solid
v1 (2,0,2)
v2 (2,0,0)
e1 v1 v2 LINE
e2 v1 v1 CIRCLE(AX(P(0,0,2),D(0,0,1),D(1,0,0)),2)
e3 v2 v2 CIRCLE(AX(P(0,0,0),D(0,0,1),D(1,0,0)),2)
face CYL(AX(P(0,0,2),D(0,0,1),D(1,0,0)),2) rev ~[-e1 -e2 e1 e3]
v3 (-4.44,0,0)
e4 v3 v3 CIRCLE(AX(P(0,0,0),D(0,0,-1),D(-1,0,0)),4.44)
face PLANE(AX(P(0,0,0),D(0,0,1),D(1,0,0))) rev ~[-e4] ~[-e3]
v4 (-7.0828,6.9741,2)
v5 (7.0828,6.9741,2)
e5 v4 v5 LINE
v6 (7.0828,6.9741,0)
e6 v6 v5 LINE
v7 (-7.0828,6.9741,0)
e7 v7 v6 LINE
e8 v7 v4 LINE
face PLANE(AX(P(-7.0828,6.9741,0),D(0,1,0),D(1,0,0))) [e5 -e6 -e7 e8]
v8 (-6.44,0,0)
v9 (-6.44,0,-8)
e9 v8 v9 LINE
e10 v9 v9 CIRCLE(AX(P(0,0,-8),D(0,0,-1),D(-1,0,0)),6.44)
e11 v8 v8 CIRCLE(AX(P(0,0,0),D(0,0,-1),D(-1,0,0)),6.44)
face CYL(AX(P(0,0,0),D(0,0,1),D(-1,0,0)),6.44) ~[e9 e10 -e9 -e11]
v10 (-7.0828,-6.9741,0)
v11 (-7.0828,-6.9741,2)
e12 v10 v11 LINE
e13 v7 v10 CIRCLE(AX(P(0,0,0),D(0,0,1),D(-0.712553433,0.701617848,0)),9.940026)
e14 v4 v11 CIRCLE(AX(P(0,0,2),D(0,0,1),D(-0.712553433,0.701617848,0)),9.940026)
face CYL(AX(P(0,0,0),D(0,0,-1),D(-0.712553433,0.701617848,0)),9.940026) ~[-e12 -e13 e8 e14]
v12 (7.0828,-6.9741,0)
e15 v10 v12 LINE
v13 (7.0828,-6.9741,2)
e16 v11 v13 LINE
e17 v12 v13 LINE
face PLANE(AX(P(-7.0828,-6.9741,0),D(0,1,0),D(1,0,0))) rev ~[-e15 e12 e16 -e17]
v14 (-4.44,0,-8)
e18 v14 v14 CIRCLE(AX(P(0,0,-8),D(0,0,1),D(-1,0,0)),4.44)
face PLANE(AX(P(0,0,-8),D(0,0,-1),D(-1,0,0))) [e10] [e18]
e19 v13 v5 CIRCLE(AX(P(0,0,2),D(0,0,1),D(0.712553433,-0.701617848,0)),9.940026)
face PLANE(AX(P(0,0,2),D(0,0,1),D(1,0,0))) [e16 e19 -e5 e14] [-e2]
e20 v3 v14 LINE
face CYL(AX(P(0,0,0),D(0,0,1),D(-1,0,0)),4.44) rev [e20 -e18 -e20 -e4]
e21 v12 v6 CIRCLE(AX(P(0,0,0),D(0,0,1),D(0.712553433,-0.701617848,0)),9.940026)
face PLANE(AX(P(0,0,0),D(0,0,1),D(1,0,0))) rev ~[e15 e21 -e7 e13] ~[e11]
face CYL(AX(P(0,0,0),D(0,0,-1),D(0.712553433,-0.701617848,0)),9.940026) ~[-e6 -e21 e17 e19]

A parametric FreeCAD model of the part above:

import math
import FreeCAD as App
import Part
import Sketcher

doc = App.newDocument("Part")
body = doc.addObject("PartDesign::Body", "Body")

sketch1 = doc.addObject("Sketcher::SketchObject", "Sketch")
body.addObject(sketch1)
sketch1.AttachmentSupport = (doc.XY_Plane, [""])
sketch1.MapMode = "FlatFace"
sketch1.addGeometry([
    Part.LineSegment(App.Vector(7.0828, 6.9741, 0), App.Vector(-7.0828, 6.9741, 0)),
    Part.ArcOfCircle(Part.Circle(App.Vector(0, 0, 0), App.Vector(0, 0, 1), 9.940026), math.radians(135.443051), math.radians(224.556949)),
    Part.LineSegment(App.Vector(-7.0828, -6.9741, 0), App.Vector(7.0828, -6.9741, 0)),
    Part.ArcOfCircle(Part.Circle(App.Vector(0, 0, 0), App.Vector(0, 0, 1), 9.940026), math.radians(-44.556949), math.radians(44.556949)),
], False)
sketch1.addConstraint([
    Sketcher.Constraint("Coincident", 0, 2, 1, 1),
    Sketcher.Constraint("Coincident", 1, 2, 2, 1),
    Sketcher.Constraint("Coincident", 2, 2, 3, 1),
    Sketcher.Constraint("Coincident", 3, 2, 0, 1),
    Sketcher.Constraint("Horizontal", 0),
    Sketcher.Constraint("Horizontal", 2),
    Sketcher.Constraint("Coincident", 1, 3, -1, 1),
    Sketcher.Constraint("Coincident", 3, 3, -1, 1),
    Sketcher.Constraint("Equal", 1, 3),
    Sketcher.Constraint("Vertical", 0, 2, 1, 2),
    Sketcher.Constraint("Radius", 1, 9.94),
    Sketcher.Constraint("DistanceX", 0, 2, 0, 1, 14.1656),
])
pad1 = doc.addObject("PartDesign::Pad", "Pad")
body.addObject(pad1)
pad1.Profile = sketch1
pad1.Length = 2

sketch2 = doc.addObject("Sketcher::SketchObject", "Sketch001")
body.addObject(sketch2)
sketch2.AttachmentSupport = (doc.XY_Plane, [""])
sketch2.MapMode = "FlatFace"
sketch2.addGeometry([
    Part.Circle(App.Vector(0, 0, 0), App.Vector(0, 0, 1), 6.44),
    Part.Circle(App.Vector(0, 0, 0), App.Vector(0, 0, 1), 4.44),
], False)
sketch2.addConstraint([
    Sketcher.Constraint("Coincident", 0, 3, -1, 1),
    Sketcher.Constraint("Coincident", 1, 3, -1, 1),
    Sketcher.Constraint("Diameter", 0, 12.88),
    Sketcher.Constraint("Diameter", 1, 8.88),
])
pad2 = doc.addObject("PartDesign::Pad", "Pad001")
body.addObject(pad2)
pad2.Profile = sketch2
pad2.Length = 8
pad2.Reversed = True

sketch3 = doc.addObject("Sketcher::SketchObject", "Sketch002")
body.addObject(sketch3)
sketch3.AttachmentSupport = (doc.XY_Plane, [""])
sketch3.MapMode = "FlatFace"
sketch3.AttachmentOffset = App.Placement(App.Vector(0, 0, 2), App.Rotation())
sketch3.addGeometry(Part.Circle(App.Vector(0, 0, 0), App.Vector(0, 0, 1), 2), False)
sketch3.addConstraint([
    Sketcher.Constraint("Coincident", 0, 3, -1, 1),
    Sketcher.Constraint("Diameter", 0, 4.0),
])
pocket1 = doc.addObject("PartDesign::Pocket", "Pocket")
body.addObject(pocket1)
pocket1.Profile = sketch3
pocket1.Type = "ThroughAll"

doc.recompute()
